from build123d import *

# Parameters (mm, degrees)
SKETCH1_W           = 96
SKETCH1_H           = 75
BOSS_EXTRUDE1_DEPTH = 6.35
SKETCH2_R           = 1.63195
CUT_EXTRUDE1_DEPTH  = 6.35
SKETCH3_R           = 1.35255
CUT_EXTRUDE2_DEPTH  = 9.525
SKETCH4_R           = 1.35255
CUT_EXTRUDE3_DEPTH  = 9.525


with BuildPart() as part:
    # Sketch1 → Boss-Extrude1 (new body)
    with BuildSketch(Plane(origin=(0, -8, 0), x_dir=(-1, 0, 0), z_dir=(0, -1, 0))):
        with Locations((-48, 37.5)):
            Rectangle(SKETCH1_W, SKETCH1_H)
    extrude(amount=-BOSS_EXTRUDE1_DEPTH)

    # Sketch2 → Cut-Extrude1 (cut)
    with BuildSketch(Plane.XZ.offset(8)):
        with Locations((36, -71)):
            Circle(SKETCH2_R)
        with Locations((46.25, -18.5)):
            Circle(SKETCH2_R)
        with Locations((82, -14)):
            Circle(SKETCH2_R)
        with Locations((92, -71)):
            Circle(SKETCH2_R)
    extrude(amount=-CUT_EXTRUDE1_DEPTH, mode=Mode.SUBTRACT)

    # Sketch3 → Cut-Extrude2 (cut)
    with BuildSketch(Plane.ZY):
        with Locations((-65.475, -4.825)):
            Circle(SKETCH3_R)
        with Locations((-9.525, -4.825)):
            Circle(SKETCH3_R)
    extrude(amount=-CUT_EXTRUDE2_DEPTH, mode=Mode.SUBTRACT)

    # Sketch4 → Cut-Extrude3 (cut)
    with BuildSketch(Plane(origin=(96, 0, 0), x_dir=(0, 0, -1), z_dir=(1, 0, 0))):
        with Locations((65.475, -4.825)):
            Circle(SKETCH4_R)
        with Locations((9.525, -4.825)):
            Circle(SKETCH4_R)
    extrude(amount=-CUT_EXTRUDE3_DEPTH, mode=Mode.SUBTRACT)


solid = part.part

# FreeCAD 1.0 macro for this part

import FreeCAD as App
import Part
import Sketcher
from FreeCAD import Vector
Q = App.Units.Quantity

doc = App.newDocument("Part")
body = doc.addObject("PartDesign::Body", "Body")

# Sketch on XZ plane
sketch1 = body.newObject("Sketcher::SketchObject", "Sketch")
sketch1.AttachmentSupport = (doc.getObject("XZ_Plane"), [""])
sketch1.MapMode = "FlatFace"
sketch1.AttachmentOffset = App.Placement(Vector(0, 0, 8), App.Rotation())
sketch1.addGeometry([
    Part.LineSegment(Vector(96, -75, 0), Vector(96, 0, 0)),
    Part.LineSegment(Vector(96, 0, 0), Vector(0, 0, 0)),
    Part.LineSegment(Vector(0, 0, 0), Vector(0, -75, 0)),
    Part.LineSegment(Vector(0, -75, 0), Vector(96, -75, 0)),
], False)
sketch1.addConstraint([
    Sketcher.Constraint("Coincident", 0, 2, 1, 1),
    Sketcher.Constraint("Coincident", 1, 2, 2, 1),
    Sketcher.Constraint("Coincident", 2, 2, 3, 1),
    Sketcher.Constraint("Coincident", 3, 2, 0, 1),
    Sketcher.Constraint("Vertical", 0),
    Sketcher.Constraint("Horizontal", 1),
    Sketcher.Constraint("Vertical", 2),
    Sketcher.Constraint("Horizontal", 3),
    Sketcher.Constraint("Coincident", 1, 2, -1, 1),
    Sketcher.Constraint("DistanceX", 1, 2, 1, 1, Q("96 mm")),
    Sketcher.Constraint("DistanceY", 0, 1, 0, 2, Q("75 mm")),
])
pad1 = body.newObject("PartDesign::Pad", "Pad")
pad1.Profile = sketch1
pad1.Length = 6.35
pad1.Reversed = True

# Sketch on XZ plane
sketch2 = body.newObject("Sketcher::SketchObject", "Sketch001")
sketch2.AttachmentSupport = (doc.getObject("XZ_Plane"), [""])
sketch2.MapMode = "FlatFace"
sketch2.AttachmentOffset = App.Placement(Vector(0, 0, 8), App.Rotation())
sketch2.addGeometry([
    Part.Circle(Vector(36, -71, 0), Vector(0, 0, 1), 1.6),
    Part.Circle(Vector(46.2, -18.5, 0), Vector(0, 0, 1), 1.6),
    Part.Circle(Vector(82, -14, 0), Vector(0, 0, 1), 1.6),
    Part.Circle(Vector(92, -71, 0), Vector(0, 0, 1), 1.6),
], False)
sketch2.addConstraint([
    Sketcher.Constraint("Equal", 0, 1),
    Sketcher.Constraint("Equal", 1, 2),
    Sketcher.Constraint("Equal", 2, 3),
    Sketcher.Constraint("Horizontal", 0, 3, 3, 3),
    Sketcher.Constraint("DistanceX", -1, 1, 0, 3, Q("36 mm")),
    Sketcher.Constraint("DistanceY", 0, 3, -1, 1, Q("71 mm")),
    Sketcher.Constraint("DistanceX", -1, 1, 2, 3, Q("82 mm")),
    Sketcher.Constraint("DistanceY", 2, 3, -1, 1, Q("14 mm")),
    Sketcher.Constraint("DistanceX", -1, 1, 3, 3, Q("92 mm")),
    Sketcher.Constraint("Diameter", 0, Q("3.2639 mm")),
    Sketcher.Constraint("DistanceY", 1, 3, -1, 1, Q("18.5 mm")),
    Sketcher.Constraint("DistanceX", -1, 1, 1, 3, Q("46.25 mm")),
])
pocket1 = body.newObject("PartDesign::Pocket", "Pocket")
pocket1.Profile = sketch2
pocket1.Length = 6.35

# Sketch on YZ plane
sketch3 = body.newObject("Sketcher::SketchObject", "Sketch002")
sketch3.AttachmentSupport = (doc.getObject("YZ_Plane"), [""])
sketch3.MapMode = "FlatFace"
sketch3.addGeometry([
    Part.Circle(Vector(-4.8, -65.5, 0), Vector(0, 0, 1), 1.4),
    Part.Circle(Vector(-4.8, -9.5, 0), Vector(0, 0, 1), 1.4),
], False)
sketch3.addConstraint([
    Sketcher.Constraint("Equal", 0, 1),
    Sketcher.Constraint("Vertical", 0, 3, 1, 3),
    Sketcher.Constraint("Diameter", 0, Q("2.7051 mm")),
    Sketcher.Constraint("DistanceY", 0, 3, 1, 3, Q("55.95 mm")),
    Sketcher.Constraint("DistanceX", 0, 3, -1, 1, Q("4.825 mm")),
    Sketcher.Constraint("DistanceY", 0, 3, -1, 1, Q("65.475 mm")),
])
pocket2 = body.newObject("PartDesign::Pocket", "Pocket001")
pocket2.Profile = sketch3
pocket2.Length = 9.525
pocket2.Reversed = True

# Sketch on YZ plane
sketch4 = body.newObject("Sketcher::SketchObject", "Sketch003")
sketch4.AttachmentSupport = (doc.getObject("YZ_Plane"), [""])
sketch4.MapMode = "FlatFace"
sketch4.AttachmentOffset = App.Placement(Vector(0, 0, 96), App.Rotation())
sketch4.addGeometry([
    Part.Circle(Vector(-4.8, -65.5, 0), Vector(0, 0, 1), 1.4),
    Part.Circle(Vector(-4.8, -9.5, 0), Vector(0, 0, 1), 1.4),
], False)
sketch4.addConstraint([
    Sketcher.Constraint("Equal", 0, 1),
    Sketcher.Constraint("Vertical", 0, 3, 1, 3),
    Sketcher.Constraint("Diameter", 0, Q("2.7051 mm")),
    Sketcher.Constraint("DistanceY", 0, 3, 1, 3, Q("55.95 mm")),
    Sketcher.Constraint("DistanceX", 0, 3, -1, 1, Q("4.825 mm")),
    Sketcher.Constraint("DistanceY", 0, 3, -1, 1, Q("65.475 mm")),
])
pocket3 = body.newObject("PartDesign::Pocket", "Pocket002")
pocket3.Profile = sketch4
pocket3.Length = 9.525

doc.recompute()
